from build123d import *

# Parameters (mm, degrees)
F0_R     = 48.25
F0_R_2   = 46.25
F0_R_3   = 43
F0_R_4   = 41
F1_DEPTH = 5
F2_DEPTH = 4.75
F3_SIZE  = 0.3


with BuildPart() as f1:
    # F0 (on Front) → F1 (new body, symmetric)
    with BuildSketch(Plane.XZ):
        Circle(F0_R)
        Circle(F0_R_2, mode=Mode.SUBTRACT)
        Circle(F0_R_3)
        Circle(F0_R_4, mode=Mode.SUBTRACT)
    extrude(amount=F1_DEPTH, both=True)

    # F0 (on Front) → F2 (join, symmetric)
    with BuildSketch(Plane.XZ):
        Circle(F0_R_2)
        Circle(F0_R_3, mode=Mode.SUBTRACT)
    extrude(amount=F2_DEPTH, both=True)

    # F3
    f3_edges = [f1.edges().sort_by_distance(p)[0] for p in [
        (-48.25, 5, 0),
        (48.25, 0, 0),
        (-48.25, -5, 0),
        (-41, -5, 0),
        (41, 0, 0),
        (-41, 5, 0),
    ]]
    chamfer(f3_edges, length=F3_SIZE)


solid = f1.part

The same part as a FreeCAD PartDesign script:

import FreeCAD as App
import Part
import Sketcher
Q = App.Units.Quantity


def edges_at(feature, points):
    """Names of the edges that pass closest to the given points."""
    edges = feature.Shape.Edges
    near = lambda p: min(range(len(edges)), key=lambda i: edges[i].distToShape(Part.Vertex(*p))[0])
    return sorted({f"Edge{near(p) + 1}" for p in points})

doc = App.newDocument("Part")
params = doc.addObject("Spreadsheet::Sheet", "Params")
for row, (alias, value) in enumerate([
    ("sketch1_diameter", "86 mm"),
    ("sketch1_diameter2", "82 mm"),
    ("sketch1_diameter3", "96.5 mm"),
    ("sketch1_diameter4", "92.5 mm"),
    ("pad1_length", "10 mm"),
    ("sketch2_diameter", "86 mm"),
    ("sketch2_diameter2", "92.5 mm"),
    ("pad2_length", "9.5 mm"),
    ("chamfer_size", "0.3 mm"),
], start=1):
    params.set(f"A{row}", alias)
    params.set(f"B{row}", "=" + value)
    params.setAlias(f"B{row}", alias)

body = doc.addObject("PartDesign::Body", "Body")
body.AllowCompound = True

# Sketch on XZ plane
sketch1 = body.newObject("Sketcher::SketchObject", "Sketch")
sketch1.AttachmentSupport = (doc.getObject("XZ_Plane"), [""])
sketch1.MapMode = "FlatFace"
sketch1.addGeometry(Part.Circle(App.Vector(0, 0, 0), App.Vector(0, 0, 1), 48.25), False)
sketch1.addGeometry(Part.Circle(App.Vector(0, 0, 0), App.Vector(0, 0, 1), 46.25), False)
sketch1.addGeometry(Part.Circle(App.Vector(0, 0, 0), App.Vector(0, 0, 1), 43), False)
sketch1.addGeometry(Part.Circle(App.Vector(0, 0, 0), App.Vector(0, 0, 1), 41), False)
sketch1.addConstraint(Sketcher.Constraint("Coincident", 0, 3, -1, 1))
sketch1.addConstraint(Sketcher.Constraint("Coincident", 1, 3, -1, 1))
sketch1.addConstraint(Sketcher.Constraint("Coincident", 2, 3, -1, 1))
sketch1.addConstraint(Sketcher.Constraint("Coincident", 3, 3, -1, 1))
sketch1.addConstraint(Sketcher.Constraint("Diameter", 2, Q("86 mm")))
sketch1.addConstraint(Sketcher.Constraint("Diameter", 3, Q("82 mm")))
sketch1.addConstraint(Sketcher.Constraint("Diameter", 0, Q("96.5 mm")))
sketch1.addConstraint(Sketcher.Constraint("Diameter", 1, Q("92.5 mm")))
sketch1.setExpression("Constraints[4]", "Params.sketch1_diameter")
sketch1.setExpression("Constraints[5]", "Params.sketch1_diameter2")
sketch1.setExpression("Constraints[6]", "Params.sketch1_diameter3")
sketch1.setExpression("Constraints[7]", "Params.sketch1_diameter4")
pad1 = body.newObject("PartDesign::Pad", "Pad")
pad1.Profile = sketch1
pad1.setExpression("Length", "Params.pad1_length")
pad1.Midplane = True

# Sketch on XZ plane
sketch2 = body.newObject("Sketcher::SketchObject", "Sketch001")
sketch2.AttachmentSupport = (doc.getObject("XZ_Plane"), [""])
sketch2.MapMode = "FlatFace"
sketch2.addGeometry(Part.Circle(App.Vector(0, 0, 0), App.Vector(0, 0, 1), 46.25), False)
sketch2.addGeometry(Part.Circle(App.Vector(0, 0, 0), App.Vector(0, 0, 1), 43), False)
sketch2.addConstraint(Sketcher.Constraint("Coincident", 0, 3, -1, 1))
sketch2.addConstraint(Sketcher.Constraint("Coincident", 1, 3, -1, 1))
sketch2.addConstraint(Sketcher.Constraint("Diameter", 1, Q("86 mm")))
sketch2.addConstraint(Sketcher.Constraint("Diameter", 0, Q("92.5 mm")))
sketch2.setExpression("Constraints[2]", "Params.sketch2_diameter")
sketch2.setExpression("Constraints[3]", "Params.sketch2_diameter2")
pad2 = body.newObject("PartDesign::Pad", "Pad001")
pad2.Profile = sketch2
pad2.setExpression("Length", "Params.pad2_length")
pad2.Midplane = True
doc.recompute()

chamfer = body.newObject("PartDesign::Chamfer", "Chamfer")
chamfer.Base = (pad2, edges_at(pad2, [
    (-48.25, 5, 0),
    (48.25, -2.5, 0),
    (-48.25, -5, 0),
    (-41, -5, 0),
    (41, 0, 0),
    (-41, 5, 0),
]))
chamfer.setExpression("Size", "Params.chamfer_size")

doc.recompute()
